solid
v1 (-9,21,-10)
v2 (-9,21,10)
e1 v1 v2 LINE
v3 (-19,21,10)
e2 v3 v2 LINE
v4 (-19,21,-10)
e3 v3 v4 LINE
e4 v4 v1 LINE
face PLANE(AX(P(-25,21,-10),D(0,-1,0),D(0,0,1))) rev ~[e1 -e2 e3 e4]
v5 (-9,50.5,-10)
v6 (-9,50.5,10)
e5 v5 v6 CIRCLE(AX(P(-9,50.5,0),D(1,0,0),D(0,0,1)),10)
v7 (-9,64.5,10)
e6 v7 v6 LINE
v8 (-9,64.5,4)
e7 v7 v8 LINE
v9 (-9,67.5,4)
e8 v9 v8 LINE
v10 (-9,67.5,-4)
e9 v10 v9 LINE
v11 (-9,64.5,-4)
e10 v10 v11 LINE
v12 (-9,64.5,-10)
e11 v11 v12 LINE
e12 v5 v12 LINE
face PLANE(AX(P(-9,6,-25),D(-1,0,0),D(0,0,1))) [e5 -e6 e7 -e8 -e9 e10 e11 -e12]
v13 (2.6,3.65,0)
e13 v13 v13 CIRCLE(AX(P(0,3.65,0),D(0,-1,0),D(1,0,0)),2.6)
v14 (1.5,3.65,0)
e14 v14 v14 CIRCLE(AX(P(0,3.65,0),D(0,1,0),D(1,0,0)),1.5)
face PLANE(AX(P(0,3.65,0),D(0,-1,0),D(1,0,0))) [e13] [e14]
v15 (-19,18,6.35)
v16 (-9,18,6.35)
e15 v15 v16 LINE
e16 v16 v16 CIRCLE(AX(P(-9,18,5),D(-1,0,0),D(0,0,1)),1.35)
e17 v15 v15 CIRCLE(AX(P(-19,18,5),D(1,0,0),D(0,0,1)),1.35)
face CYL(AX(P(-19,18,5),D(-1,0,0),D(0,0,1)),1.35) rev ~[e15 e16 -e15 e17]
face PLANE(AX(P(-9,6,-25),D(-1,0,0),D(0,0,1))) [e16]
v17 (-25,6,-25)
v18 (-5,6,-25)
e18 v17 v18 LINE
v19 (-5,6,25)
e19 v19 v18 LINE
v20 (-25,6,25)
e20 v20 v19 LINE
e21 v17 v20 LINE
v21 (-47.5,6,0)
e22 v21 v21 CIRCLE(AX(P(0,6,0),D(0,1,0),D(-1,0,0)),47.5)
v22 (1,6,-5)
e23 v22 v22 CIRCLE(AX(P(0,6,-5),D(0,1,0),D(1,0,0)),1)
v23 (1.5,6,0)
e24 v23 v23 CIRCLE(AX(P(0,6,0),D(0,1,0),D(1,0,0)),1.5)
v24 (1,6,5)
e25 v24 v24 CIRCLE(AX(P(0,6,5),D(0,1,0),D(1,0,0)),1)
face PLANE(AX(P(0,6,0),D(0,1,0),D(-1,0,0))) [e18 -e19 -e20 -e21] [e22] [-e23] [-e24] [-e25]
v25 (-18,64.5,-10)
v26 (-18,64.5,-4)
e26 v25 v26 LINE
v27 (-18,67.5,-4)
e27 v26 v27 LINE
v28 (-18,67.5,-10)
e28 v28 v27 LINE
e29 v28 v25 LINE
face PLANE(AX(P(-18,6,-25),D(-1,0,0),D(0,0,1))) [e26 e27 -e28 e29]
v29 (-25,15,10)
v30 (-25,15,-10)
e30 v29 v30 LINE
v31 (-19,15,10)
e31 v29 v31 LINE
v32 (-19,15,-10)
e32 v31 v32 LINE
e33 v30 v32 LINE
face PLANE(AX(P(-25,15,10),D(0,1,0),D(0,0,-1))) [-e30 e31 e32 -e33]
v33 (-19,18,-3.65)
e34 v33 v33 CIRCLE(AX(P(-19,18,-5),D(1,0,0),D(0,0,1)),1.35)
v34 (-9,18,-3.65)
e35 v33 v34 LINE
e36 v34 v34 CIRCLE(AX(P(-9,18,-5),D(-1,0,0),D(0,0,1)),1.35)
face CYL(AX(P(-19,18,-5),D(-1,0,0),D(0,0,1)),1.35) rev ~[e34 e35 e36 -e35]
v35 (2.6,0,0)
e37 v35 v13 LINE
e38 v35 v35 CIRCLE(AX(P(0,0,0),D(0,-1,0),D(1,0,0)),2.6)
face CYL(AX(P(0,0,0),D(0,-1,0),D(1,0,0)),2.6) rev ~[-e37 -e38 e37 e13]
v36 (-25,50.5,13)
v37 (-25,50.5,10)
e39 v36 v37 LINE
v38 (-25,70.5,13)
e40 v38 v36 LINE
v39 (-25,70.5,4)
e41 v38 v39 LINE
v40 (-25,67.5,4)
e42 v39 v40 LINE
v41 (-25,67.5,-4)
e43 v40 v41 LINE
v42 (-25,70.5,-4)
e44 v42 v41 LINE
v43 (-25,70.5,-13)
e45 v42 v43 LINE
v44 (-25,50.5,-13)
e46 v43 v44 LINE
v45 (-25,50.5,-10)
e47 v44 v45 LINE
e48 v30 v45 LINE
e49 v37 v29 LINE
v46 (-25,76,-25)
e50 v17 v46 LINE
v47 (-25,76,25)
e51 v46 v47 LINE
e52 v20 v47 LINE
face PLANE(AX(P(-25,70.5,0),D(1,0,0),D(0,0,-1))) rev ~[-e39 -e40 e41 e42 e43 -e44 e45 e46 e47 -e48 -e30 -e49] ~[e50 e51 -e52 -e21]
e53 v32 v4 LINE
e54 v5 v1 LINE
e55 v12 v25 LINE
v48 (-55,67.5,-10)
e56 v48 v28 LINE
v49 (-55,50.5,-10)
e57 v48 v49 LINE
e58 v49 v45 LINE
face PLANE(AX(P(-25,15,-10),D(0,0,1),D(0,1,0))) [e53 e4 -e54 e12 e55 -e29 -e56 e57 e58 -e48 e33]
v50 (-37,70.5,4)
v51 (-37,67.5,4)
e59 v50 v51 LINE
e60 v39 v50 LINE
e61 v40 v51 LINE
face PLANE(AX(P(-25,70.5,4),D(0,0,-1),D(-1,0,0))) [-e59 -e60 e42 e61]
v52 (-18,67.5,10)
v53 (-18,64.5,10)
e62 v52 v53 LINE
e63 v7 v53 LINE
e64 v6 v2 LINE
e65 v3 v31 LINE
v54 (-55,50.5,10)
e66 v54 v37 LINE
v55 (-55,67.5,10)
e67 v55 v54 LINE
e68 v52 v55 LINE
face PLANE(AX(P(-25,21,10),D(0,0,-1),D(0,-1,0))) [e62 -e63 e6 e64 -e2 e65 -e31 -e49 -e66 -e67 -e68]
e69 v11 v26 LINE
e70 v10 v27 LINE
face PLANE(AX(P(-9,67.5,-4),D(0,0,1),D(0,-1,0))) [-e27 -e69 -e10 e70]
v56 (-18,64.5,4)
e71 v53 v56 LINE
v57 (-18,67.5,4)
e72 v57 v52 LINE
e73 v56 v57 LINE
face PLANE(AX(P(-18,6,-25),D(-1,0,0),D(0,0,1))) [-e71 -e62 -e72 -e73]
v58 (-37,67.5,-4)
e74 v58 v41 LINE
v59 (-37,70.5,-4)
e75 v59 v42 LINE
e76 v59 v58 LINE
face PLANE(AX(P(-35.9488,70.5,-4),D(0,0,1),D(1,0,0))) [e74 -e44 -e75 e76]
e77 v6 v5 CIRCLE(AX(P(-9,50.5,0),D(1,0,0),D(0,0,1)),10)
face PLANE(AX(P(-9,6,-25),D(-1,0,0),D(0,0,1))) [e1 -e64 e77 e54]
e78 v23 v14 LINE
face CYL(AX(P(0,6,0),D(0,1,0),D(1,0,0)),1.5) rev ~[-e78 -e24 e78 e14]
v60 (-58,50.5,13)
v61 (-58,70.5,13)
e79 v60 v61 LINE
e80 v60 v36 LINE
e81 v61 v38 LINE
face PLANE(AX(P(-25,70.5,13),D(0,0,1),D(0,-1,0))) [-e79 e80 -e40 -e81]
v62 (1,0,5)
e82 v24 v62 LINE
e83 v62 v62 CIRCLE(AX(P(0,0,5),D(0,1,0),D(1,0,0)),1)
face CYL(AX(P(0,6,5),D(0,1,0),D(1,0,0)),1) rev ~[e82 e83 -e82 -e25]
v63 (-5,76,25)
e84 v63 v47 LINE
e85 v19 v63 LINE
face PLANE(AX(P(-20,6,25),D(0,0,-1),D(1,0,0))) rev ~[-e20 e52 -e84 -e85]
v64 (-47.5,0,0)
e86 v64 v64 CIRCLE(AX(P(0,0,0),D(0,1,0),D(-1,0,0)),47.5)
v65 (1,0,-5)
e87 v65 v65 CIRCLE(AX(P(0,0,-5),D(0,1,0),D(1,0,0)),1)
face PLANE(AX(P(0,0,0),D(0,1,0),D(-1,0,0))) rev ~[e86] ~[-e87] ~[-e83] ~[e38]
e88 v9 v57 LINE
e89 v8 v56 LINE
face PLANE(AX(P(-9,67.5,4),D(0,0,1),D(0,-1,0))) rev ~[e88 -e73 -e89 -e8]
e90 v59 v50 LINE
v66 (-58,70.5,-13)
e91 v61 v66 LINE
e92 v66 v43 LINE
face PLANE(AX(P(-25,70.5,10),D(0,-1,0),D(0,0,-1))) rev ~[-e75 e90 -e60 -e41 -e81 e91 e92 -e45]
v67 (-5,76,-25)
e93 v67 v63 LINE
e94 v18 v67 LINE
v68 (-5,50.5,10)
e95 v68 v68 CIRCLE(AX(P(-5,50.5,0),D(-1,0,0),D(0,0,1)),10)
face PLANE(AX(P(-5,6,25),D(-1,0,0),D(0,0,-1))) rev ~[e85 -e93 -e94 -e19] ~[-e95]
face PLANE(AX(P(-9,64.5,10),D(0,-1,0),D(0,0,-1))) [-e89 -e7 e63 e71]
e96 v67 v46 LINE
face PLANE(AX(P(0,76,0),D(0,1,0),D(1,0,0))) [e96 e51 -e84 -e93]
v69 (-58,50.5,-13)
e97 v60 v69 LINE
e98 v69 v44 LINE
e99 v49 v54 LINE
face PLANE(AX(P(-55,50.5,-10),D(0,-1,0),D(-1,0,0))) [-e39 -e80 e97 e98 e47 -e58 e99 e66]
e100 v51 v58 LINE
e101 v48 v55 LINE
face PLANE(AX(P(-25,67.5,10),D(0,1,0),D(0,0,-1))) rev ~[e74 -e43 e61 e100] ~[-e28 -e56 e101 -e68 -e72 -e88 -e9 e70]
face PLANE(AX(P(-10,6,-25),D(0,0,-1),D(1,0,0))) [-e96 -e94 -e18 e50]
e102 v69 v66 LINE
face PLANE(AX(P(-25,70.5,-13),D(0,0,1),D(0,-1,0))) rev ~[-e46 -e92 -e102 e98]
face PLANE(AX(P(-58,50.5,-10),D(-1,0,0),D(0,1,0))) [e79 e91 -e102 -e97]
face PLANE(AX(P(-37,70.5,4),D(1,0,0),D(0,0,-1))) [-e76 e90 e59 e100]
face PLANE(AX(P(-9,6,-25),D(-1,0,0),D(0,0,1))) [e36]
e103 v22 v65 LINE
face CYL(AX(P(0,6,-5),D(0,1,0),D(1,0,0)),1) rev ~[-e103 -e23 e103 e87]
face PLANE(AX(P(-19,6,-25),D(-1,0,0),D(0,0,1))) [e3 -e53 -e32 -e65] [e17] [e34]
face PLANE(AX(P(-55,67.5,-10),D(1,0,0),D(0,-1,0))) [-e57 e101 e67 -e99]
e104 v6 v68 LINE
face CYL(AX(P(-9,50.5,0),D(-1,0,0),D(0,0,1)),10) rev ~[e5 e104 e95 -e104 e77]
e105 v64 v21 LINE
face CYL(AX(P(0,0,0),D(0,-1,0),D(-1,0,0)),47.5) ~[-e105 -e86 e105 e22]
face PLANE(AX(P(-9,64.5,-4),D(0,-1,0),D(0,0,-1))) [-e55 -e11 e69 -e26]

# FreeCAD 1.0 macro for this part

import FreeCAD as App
import Part
import Sketcher

V = App.Vector


def add_polygon(sketch, points):
    """Adds a closed chain of lines whose ends are joined by coincident constraints."""
    first, n = sketch.GeometryCount, len(points)
    for a, b in zip(points, points[1:] + points[:1]):
        sketch.addGeometry(Part.LineSegment(App.Vector(*a, 0), App.Vector(*b, 0)), False)
    for i in range(n):
        sketch.addConstraint(Sketcher.Constraint("Coincident", first + i, 2, first + (i + 1) % n, 1))

doc = App.newDocument("Part")
params = doc.addObject("Spreadsheet::Sheet", "Params")
for row, (alias, value) in enumerate([
    ("sketch1_diameter", "95 mm"),
    ("pad1_length", "6 mm"),
    ("sketch2_diameter", "2 mm"),
    ("pocket1_length", "23.4625 mm"),
    ("sketch3_width", "20 mm"),
    ("sketch3_height", "50 mm"),
    ("pad2_length", "70 mm"),
    ("sketch4_height", "20 mm"),
    ("sketch4_width", "40.5 mm"),
    ("pocket2_length", "16 mm"),
    ("sketch5_width", "6 mm"),
    ("sketch5_height", "20 mm"),
    ("pocket3_length", "6 mm"),
    ("sketch6_diameter", "2.7 mm"),
    ("pocket4_length", "10 mm"),
    ("sketch7_diameter", "20 mm"),
    ("pocket5_length", "15.4 mm"),
    ("sketch8_diameter", "3 mm"),
    ("pocket6_length", "15.4 mm"),
    ("sketch9_diameter", "5.2 mm"),
    ("pocket7_length", "3.65 mm"),
    ("sketch10_width", "6 mm"),
    ("sketch10_height", "20 mm"),
    ("pocket8_length", "10 mm"),
    ("sketch11_width", "3 mm"),
    ("sketch11_height", "6 mm"),
    ("pad3_length", "12 mm"),
    ("sketch12_width", "20 mm"),
    ("sketch12_height", "3 mm"),
    ("pad4_length", "30 mm"),
    ("sketch13_height", "3 mm"),
    ("sketch13_width", "17 mm"),
    ("pad5_length", "3 mm"),
    ("sketch14_width", "3 mm"),
    ("sketch14_height", "17 mm"),
    ("pad6_length", "20 mm"),
    ("sketch15_width", "12 mm"),
    ("pocket9_length", "4 mm"),
    ("sketch16_width", "3 mm"),
    ("sketch16_height", "6 mm"),
    ("pocket10_length", "3 mm"),
], start=1):
    params.set(f"A{row}", alias)
    params.set(f"B{row}", "=" + value)
    params.setAlias(f"B{row}", alias)

body = doc.addObject("PartDesign::Body", "Body")

sketch1 = body.newObject("Sketcher::SketchObject", "Sketch")
sketch1.AttachmentSupport = (doc.getObject("XZ_Plane"), [""])
sketch1.MapMode = "FlatFace"
sketch1.addGeometry(Part.Circle(V(0, 0, 0), V(0, 0, 1), 47.5), False)
sketch1.addConstraint([
    Sketcher.Constraint("Coincident", 0, 3, -1, 1),
    Sketcher.Constraint("Diameter", 0, 95.0),
])
sketch1.setExpression("Constraints[1]", "Params.sketch1_diameter")
pad1 = body.newObject("PartDesign::Pad", "Pad")
pad1.Profile = sketch1
pad1.setExpression("Length", "Params.pad1_length")
pad1.Reversed = True

sketch2 = body.newObject("Sketcher::SketchObject", "Sketch001")
sketch2.AttachmentSupport = (doc.getObject("XZ_Plane"), [""])
sketch2.MapMode = "FlatFace"
sketch2.AttachmentOffset = App.Placement(V(0, 0, -6), App.Rotation())
sketch2.addGeometry([
    Part.Circle(V(0, -5, 0), V(0, 0, 1), 1),
    Part.Circle(V(0, 5, 0), V(0, 0, 1), 1),
], False)
sketch2.addConstraint([
    Sketcher.Constraint("Equal", 0, 1),
    Sketcher.Constraint("Symmetric", 0, 3, 1, 3, -1, 1),
    Sketcher.Constraint("PointOnObject", 0, 3, -2),
    Sketcher.Constraint("Diameter", 0, 2.0),
    Sketcher.Constraint("DistanceY", 0, 3, -1, 1, 5.0),
])
sketch2.setExpression("Constraints[3]", "Params.sketch2_diameter")
pocket1 = body.newObject("PartDesign::Pocket", "Pocket")
pocket1.Profile = sketch2
pocket1.setExpression("Length", "Params.pocket1_length")
pocket1.Reversed = True

sketch3 = body.newObject("Sketcher::SketchObject", "Sketch002")
sketch3.AttachmentSupport = (doc.getObject("XZ_Plane"), [""])
sketch3.MapMode = "FlatFace"
sketch3.AttachmentOffset = App.Placement(V(0, 0, -6), App.Rotation())
add_polygon(sketch3, [(-5, 25), (-5, -25), (-25, -25), (-25, 25)])
sketch3.addConstraint([
    Sketcher.Constraint("Vertical", 0),
    Sketcher.Constraint("Horizontal", 1),
    Sketcher.Constraint("Vertical", 2),
    Sketcher.Constraint("Horizontal", 3),
    Sketcher.Constraint("DistanceX", 1, 2, 1, 1, 20.0),
    Sketcher.Constraint("DistanceY", 0, 2, 0, 1, 50.0),
    Sketcher.Constraint("DistanceY", 0, 2, -1, 1, 25.0),
    Sketcher.Constraint("DistanceX", 1, 2, -1, 1, 25.0),
])
sketch3.setExpression("Constraints[8]", "Params.sketch3_width")
sketch3.setExpression("Constraints[9]", "Params.sketch3_height")
pad2 = body.newObject("PartDesign::Pad", "Pad001")
pad2.Profile = sketch3
pad2.setExpression("Length", "Params.pad2_length")
pad2.Reversed = True

sketch4 = body.newObject("Sketcher::SketchObject", "Sketch003")
sketch4.AttachmentSupport = (doc.getObject("YZ_Plane"), [""])
sketch4.MapMode = "FlatFace"
sketch4.AttachmentOffset = App.Placement(V(0, 0, -25), App.Rotation())
add_polygon(sketch4, [(21, -10), (21, 10), (61.5, 10), (61.5, -10)])
sketch4.addConstraint([
    Sketcher.Constraint("Vertical", 0),
    Sketcher.Constraint("Horizontal", 1),
    Sketcher.Constraint("Vertical", 2),
    Sketcher.Constraint("Horizontal", 3),
    Sketcher.Constraint("DistanceY", 0, 1, 0, 2, 20.0),
    Sketcher.Constraint("DistanceX", 1, 1, 1, 2, 40.5),
    Sketcher.Constraint("DistanceY", -1, 1, 0, 2, 10.0),
    Sketcher.Constraint("DistanceX", -1, 1, 0, 2, 21.0),
])
sketch4.setExpression("Constraints[8]", "Params.sketch4_height")
sketch4.setExpression("Constraints[9]", "Params.sketch4_width")
pocket2 = body.newObject("PartDesign::Pocket", "Pocket001")
pocket2.Profile = sketch4
pocket2.setExpression("Length", "Params.pocket2_length")
pocket2.Reversed = True

sketch5 = body.newObject("Sketcher::SketchObject", "Sketch004")
sketch5.AttachmentSupport = (doc.getObject("YZ_Plane"), [""])
sketch5.MapMode = "FlatFace"
sketch5.AttachmentOffset = App.Placement(V(0, 0, -25), App.Rotation())
add_polygon(sketch5, [(15, 10), (21, 10), (21, -10), (15, -10)])
add_polygon(sketch5, [(67.5, -10), (61.5, -10), (61.5, 10), (67.5, 10)])
sketch5.addConstraint([
    Sketcher.Constraint("Horizontal", 0),
    Sketcher.Constraint("Vertical", 1),
    Sketcher.Constraint("Horizontal", 2),
    Sketcher.Constraint("Vertical", 3),
    Sketcher.Constraint("Horizontal", 4),
    Sketcher.Constraint("Vertical", 5),
    Sketcher.Constraint("Horizontal", 6),
    Sketcher.Constraint("Vertical", 7),
    Sketcher.Constraint("Horizontal", 2, 2, 4, 2),
    Sketcher.Constraint("Horizontal", 3, 2, 5, 2),
    Sketcher.Constraint("Equal", 2, 4),
    Sketcher.Constraint("DistanceX", 0, 1, 0, 2, 6.0),
    Sketcher.Constraint("DistanceY", 1, 2, 1, 1, 20.0),
    Sketcher.Constraint("DistanceX", -1, 1, 0, 2, 21.0),
    Sketcher.Constraint("DistanceY", -1, 1, 0, 2, 10.0),
    Sketcher.Constraint("DistanceX", -1, 1, 4, 2, 61.5),
])
sketch5.setExpression("Constraints[19]", "Params.sketch5_width")
sketch5.setExpression("Constraints[20]", "Params.sketch5_height")
pocket3 = body.newObject("PartDesign::Pocket", "Pocket002")
pocket3.Profile = sketch5
pocket3.setExpression("Length", "Params.pocket3_length")
pocket3.Reversed = True

sketch6 = body.newObject("Sketcher::SketchObject", "Sketch005")
sketch6.AttachmentSupport = (doc.getObject("YZ_Plane"), [""])
sketch6.MapMode = "FlatFace"
sketch6.AttachmentOffset = App.Placement(V(0, 0, -19), App.Rotation())
sketch6.addGeometry([
    Part.Circle(V(18, 5, 0), V(0, 0, 1), 1.35),
    Part.Circle(V(18, -5, 0), V(0, 0, 1), 1.35),
    Part.Circle(V(64.5, 5, 0), V(0, 0, 1), 1.35),
    Part.Circle(V(64.5, -5, 0), V(0, 0, 1), 1.35),
], False)
sketch6.addConstraint([
    Sketcher.Constraint("Equal", 0, 1),
    Sketcher.Constraint("Equal", 1, 2),
    Sketcher.Constraint("Equal", 2, 3),
    Sketcher.Constraint("Symmetric", 0, 3, 1, 3, -1),
    Sketcher.Constraint("Symmetric", 2, 3, 3, 3, -1),
    Sketcher.Constraint("Horizontal", 0, 3, 2, 3),
    Sketcher.Constraint("Diameter", 0, 2.7),
    Sketcher.Constraint("DistanceY", -1, 1, 0, 3, 5.0),
    Sketcher.Constraint("DistanceX", -1, 1, 0, 3, 18.0),
    Sketcher.Constraint("DistanceX", -1, 1, 2, 3, 64.5),
])
sketch6.setExpression("Constraints[6]", "Params.sketch6_diameter")
pocket4 = body.newObject("PartDesign::Pocket", "Pocket003")
pocket4.Profile = sketch6
pocket4.setExpression("Length", "Params.pocket4_length")
pocket4.Reversed = True

sketch7 = body.newObject("Sketcher::SketchObject", "Sketch006")
sketch7.AttachmentSupport = (doc.getObject("YZ_Plane"), [""])
sketch7.MapMode = "FlatFace"
sketch7.AttachmentOffset = App.Placement(V(0, 0, -9), App.Rotation())
sketch7.addGeometry(Part.Circle(V(50.5, 0, 0), V(0, 0, 1), 10), False)
sketch7.addConstraint([
    Sketcher.Constraint("PointOnObject", 0, 3, -1),
    Sketcher.Constraint("Diameter", 0, 20.0),
    Sketcher.Constraint("DistanceX", -1, 1, 0, 3, 50.5),
])
sketch7.setExpression("Constraints[1]", "Params.sketch7_diameter")
pocket5 = body.newObject("PartDesign::Pocket", "Pocket004")
pocket5.Profile = sketch7
pocket5.setExpression("Length", "Params.pocket5_length")
pocket5.Reversed = True

sketch8 = body.newObject("Sketcher::SketchObject", "Sketch007")
sketch8.AttachmentSupport = (doc.getObject("XZ_Plane"), [""])
sketch8.MapMode = "FlatFace"
sketch8.AttachmentOffset = App.Placement(V(0, 0, -6), App.Rotation())
sketch8.addGeometry(Part.Circle(V(0, 0, 0), V(0, 0, 1), 1.5), False)
sketch8.addConstraint([
    Sketcher.Constraint("Coincident", 0, 3, -1, 1),
    Sketcher.Constraint("Diameter", 0, 3.0),
])
sketch8.setExpression("Constraints[1]", "Params.sketch8_diameter")
pocket6 = body.newObject("PartDesign::Pocket", "Pocket005")
pocket6.Profile = sketch8
pocket6.setExpression("Length", "Params.pocket6_length")
pocket6.Reversed = True

sketch9 = body.newObject("Sketcher::SketchObject", "Sketch008")
sketch9.AttachmentSupport = (doc.getObject("XZ_Plane"), [""])
sketch9.MapMode = "FlatFace"
sketch9.addGeometry(Part.Circle(V(0, 0, 0), V(0, 0, 1), 2.6), False)
sketch9.addConstraint([
    Sketcher.Constraint("Coincident", 0, 3, -1, 1),
    Sketcher.Constraint("Diameter", 0, 5.2),
])
sketch9.setExpression("Constraints[1]", "Params.sketch9_diameter")
pocket7 = body.newObject("PartDesign::Pocket", "Pocket006")
pocket7.Profile = sketch9
pocket7.setExpression("Length", "Params.pocket7_length")

sketch10 = body.newObject("Sketcher::SketchObject", "Sketch009")
sketch10.AttachmentSupport = (doc.getObject("YZ_Plane"), [""])
sketch10.MapMode = "FlatFace"
sketch10.AttachmentOffset = App.Placement(V(0, 0, -19), App.Rotation())
add_polygon(sketch10, [(67.5, -10), (61.5, -10), (61.5, 10), (67.5, 10)])
sketch10.addConstraint([
    Sketcher.Constraint("Horizontal", 0),
    Sketcher.Constraint("Vertical", 1),
    Sketcher.Constraint("Horizontal", 2),
    Sketcher.Constraint("Vertical", 3),
    Sketcher.Constraint("DistanceX", 0, 2, 0, 1, 6.0),
    Sketcher.Constraint("DistanceY", 1, 1, 1, 2, 20.0),
    Sketcher.Constraint("DistanceY", 0, 2, -1, 1, 10.0),
    Sketcher.Constraint("DistanceX", -1, 1, 0, 2, 61.5),
])
sketch10.setExpression("Constraints[8]", "Params.sketch10_width")
sketch10.setExpression("Constraints[9]", "Params.sketch10_height")
pocket8 = body.newObject("PartDesign::Pocket", "Pocket007")
pocket8.Profile = sketch10
pocket8.setExpression("Length", "Params.pocket8_length")
pocket8.Reversed = True

sketch11 = body.newObject("Sketcher::SketchObject", "Sketch010")
sketch11.AttachmentSupport = (doc.getObject("YZ_Plane"), [""])
sketch11.MapMode = "FlatFace"
sketch11.AttachmentOffset = App.Placement(V(0, 0, -9), App.Rotation())
add_polygon(sketch11, [(67.5, -4), (67.5, -10), (64.5, -10), (64.5, -4)])
add_polygon(sketch11, [(67.5, 10), (67.5, 4), (64.5, 4), (64.5, 10)])
sketch11.addConstraint([
    Sketcher.Constraint("Vertical", 0),
    Sketcher.Constraint("Horizontal", 1),
    Sketcher.Constraint("Vertical", 2),
    Sketcher.Constraint("Horizontal", 3),
    Sketcher.Constraint("Vertical", 4),
    Sketcher.Constraint("Horizontal", 5),
    Sketcher.Constraint("Vertical", 6),
    Sketcher.Constraint("Horizontal", 7),
    Sketcher.Constraint("Symmetric", 3, 2, 4, 2, -1),
    Sketcher.Constraint("Symmetric", 1, 2, 6, 2, -1),
    Sketcher.Constraint("DistanceX", 1, 2, 1, 1, 3.0),
    Sketcher.Constraint("DistanceY", 0, 2, 0, 1, 6.0),
    Sketcher.Constraint("DistanceY", 0, 2, -1, 1, 10.0),
    Sketcher.Constraint("DistanceX", -1, 1, 0, 2, 67.5),
])
sketch11.setExpression("Constraints[18]", "Params.sketch11_width")
sketch11.setExpression("Constraints[19]", "Params.sketch11_height")
pad3 = body.newObject("PartDesign::Pad", "Pad002")
pad3.Profile = sketch11
pad3.setExpression("Length", "Params.pad3_length")
pad3.Reversed = True

sketch12 = body.newObject("Sketcher::SketchObject", "Sketch011")
sketch12.AttachmentSupport = (doc.getObject("YZ_Plane"), [""])
sketch12.MapMode = "FlatFace"
sketch12.AttachmentOffset = App.Placement(V(0, 0, -25), App.Rotation())
add_polygon(sketch12, [(70.5, -13), (50.5, -13), (50.5, -10), (67.5, -10), (67.5, 10), (50.5, 10), (50.5, 13), (70.5, 13)])
sketch12.addConstraint([
    Sketcher.Constraint("Horizontal", 0),
    Sketcher.Constraint("Vertical", 1),
    Sketcher.Constraint("Horizontal", 2),
    Sketcher.Constraint("Vertical", 3),
    Sketcher.Constraint("Horizontal", 4),
    Sketcher.Constraint("Vertical", 5),
    Sketcher.Constraint("Horizontal", 6),
    Sketcher.Constraint("Vertical", 7),
    Sketcher.Constraint("Symmetric", 1, 2, 4, 2, -1),
    Sketcher.Constraint("Equal", 6, 3),
    Sketcher.Constraint("Equal", 1, 5),
    Sketcher.Constraint("DistanceX", 0, 2, 0, 1, 20.0),
    Sketcher.Constraint("DistanceY", 1, 1, 1, 2, 3.0),
    Sketcher.Constraint("DistanceX", 3, 2, 6, 2, 3.0),
    Sketcher.Constraint("DistanceX", -1, 1, 0, 2, 50.5),
])
sketch12.setExpression("Constraints[19]", "Params.sketch12_width")
sketch12.setExpression("Constraints[20]", "Params.sketch12_height")
pad4 = body.newObject("PartDesign::Pad", "Pad003")
pad4.Profile = sketch12
pad4.setExpression("Length", "Params.pad4_length")
pad4.Reversed = True

sketch13 = body.newObject("Sketcher::SketchObject", "Sketch012")
sketch13.AttachmentSupport = (doc.getObject("YZ_Plane"), [""])
sketch13.MapMode = "FlatFace"
sketch13.AttachmentOffset = App.Placement(V(0, 0, -55), App.Rotation())
add_polygon(sketch13, [(50.5, -13), (50.5, -10), (67.5, -10), (67.5, 10), (50.5, 10), (50.5, 13), (70.5, 13), (70.5, -13)])
sketch13.addConstraint([
    Sketcher.Constraint("Vertical", 0),
    Sketcher.Constraint("Horizontal", 1),
    Sketcher.Constraint("Vertical", 2),
    Sketcher.Constraint("Horizontal", 3),
    Sketcher.Constraint("Vertical", 4),
    Sketcher.Constraint("Horizontal", 5),
    Sketcher.Constraint("Vertical", 6),
    Sketcher.Constraint("Horizontal", 7),
    Sketcher.Constraint("Symmetric", 0, 2, 3, 2, -1),
    Sketcher.Constraint("Equal", 7, 2),
    Sketcher.Constraint("Equal", 0, 4),
    Sketcher.Constraint("DistanceY", 0, 1, 0, 2, 3.0),
    Sketcher.Constraint("DistanceX", 2, 2, 5, 2, 3.0),
    Sketcher.Constraint("DistanceX", 1, 1, 1, 2, 17.0),
    Sketcher.Constraint("DistanceX", -1, 1, 0, 2, 50.5),
])
sketch13.setExpression("Constraints[19]", "Params.sketch13_height")
sketch13.setExpression("Constraints[21]", "Params.sketch13_width")
pad5 = body.newObject("PartDesign::Pad", "Pad004")
pad5.Profile = sketch13
pad5.setExpression("Length", "Params.pad5_length")
pad5.Reversed = True

sketch14 = body.newObject("Sketcher::SketchObject", "Sketch013")
sketch14.AttachmentSupport = (doc.getObject("XY_Plane"), [""])
sketch14.MapMode = "FlatFace"
sketch14.AttachmentOffset = App.Placement(V(0, 0, -10), App.Rotation())
add_polygon(sketch14, [(-55, 67.5), (-58, 67.5), (-58, 50.5), (-55, 50.5)])
sketch14.addConstraint([
    Sketcher.Constraint("Horizontal", 0),
    Sketcher.Constraint("Vertical", 1),
    Sketcher.Constraint("Horizontal", 2),
    Sketcher.Constraint("Vertical", 3),
    Sketcher.Constraint("DistanceX", 0, 2, 0, 1, 3.0),
    Sketcher.Constraint("DistanceY", 1, 2, 1, 1, 17.0),
    Sketcher.Constraint("DistanceX", 0, 2, -1, 1, 58.0),
    Sketcher.Constraint("DistanceY", -1, 1, 0, 2, 67.5),
])
sketch14.setExpression("Constraints[8]", "Params.sketch14_width")
sketch14.setExpression("Constraints[9]", "Params.sketch14_height")
pad6 = body.newObject("PartDesign::Pad", "Pad005")
pad6.Profile = sketch14
pad6.setExpression("Length", "Params.pad6_length")

sketch15 = body.newObject("Sketcher::SketchObject", "Sketch014")
sketch15.AttachmentSupport = (doc.getObject("XZ_Plane"), [""])
sketch15.MapMode = "FlatFace"
sketch15.AttachmentOffset = App.Placement(V(0, 0, -70.5), App.Rotation())
add_polygon(sketch15, [(-25, -4), (-37, -4), (-37, 4), (-25, 4)])
sketch15.addConstraint([
    Sketcher.Constraint("Horizontal", 0),
    Sketcher.Constraint("Vertical", 1),
    Sketcher.Constraint("Horizontal", 2),
    Sketcher.Constraint("Vertical", 3),
    Sketcher.Constraint("DistanceX", 0, 2, 0, 1, 12.0),
    Sketcher.Constraint("DistanceY", 0, 2, -1, 1, 4.0),
    Sketcher.Constraint("DistanceY", -1, 1, 1, 2, 4.0),
    Sketcher.Constraint("DistanceX", 0, 2, -1, 1, 37.0),
])
sketch15.setExpression("Constraints[8]", "Params.sketch15_width")
pocket9 = body.newObject("PartDesign::Pocket", "Pocket008")
pocket9.Profile = sketch15
pocket9.setExpression("Length", "Params.pocket9_length")
pocket9.Reversed = True

sketch16 = body.newObject("Sketcher::SketchObject", "Sketch015")
sketch16.AttachmentSupport = (doc.getObject("YZ_Plane"), [""])
sketch16.MapMode = "FlatFace"
sketch16.AttachmentOffset = App.Placement(V(0, 0, -21), App.Rotation())
add_polygon(sketch16, [(67.5, -10), (64.5, -10), (64.5, -4), (67.5, -4)])
add_polygon(sketch16, [(67.5, 10), (67.5, 4), (64.5, 4), (64.5, 10)])
sketch16.addConstraint([
    Sketcher.Constraint("Horizontal", 0),
    Sketcher.Constraint("Vertical", 1),
    Sketcher.Constraint("Horizontal", 2),
    Sketcher.Constraint("Vertical", 3),
    Sketcher.Constraint("Vertical", 4),
    Sketcher.Constraint("Horizontal", 5),
    Sketcher.Constraint("Vertical", 6),
    Sketcher.Constraint("Horizontal", 7),
    Sketcher.Constraint("Symmetric", 2, 2, 4, 2, -1),
    Sketcher.Constraint("Symmetric", 0, 2, 6, 2, -1),
    Sketcher.Constraint("DistanceX", 0, 2, 0, 1, 3.0),
    Sketcher.Constraint("DistanceY", 1, 1, 1, 2, 6.0),
    Sketcher.Constraint("DistanceY", 0, 2, -1, 1, 10.0),
    Sketcher.Constraint("DistanceX", -1, 1, 0, 2, 64.5),
])
sketch16.setExpression("Constraints[18]", "Params.sketch16_width")
sketch16.setExpression("Constraints[19]", "Params.sketch16_height")
pocket10 = body.newObject("PartDesign::Pocket", "Pocket009")
pocket10.Profile = sketch16
pocket10.setExpression("Length", "Params.pocket10_length")
pocket10.Reversed = True

doc.recompute()
